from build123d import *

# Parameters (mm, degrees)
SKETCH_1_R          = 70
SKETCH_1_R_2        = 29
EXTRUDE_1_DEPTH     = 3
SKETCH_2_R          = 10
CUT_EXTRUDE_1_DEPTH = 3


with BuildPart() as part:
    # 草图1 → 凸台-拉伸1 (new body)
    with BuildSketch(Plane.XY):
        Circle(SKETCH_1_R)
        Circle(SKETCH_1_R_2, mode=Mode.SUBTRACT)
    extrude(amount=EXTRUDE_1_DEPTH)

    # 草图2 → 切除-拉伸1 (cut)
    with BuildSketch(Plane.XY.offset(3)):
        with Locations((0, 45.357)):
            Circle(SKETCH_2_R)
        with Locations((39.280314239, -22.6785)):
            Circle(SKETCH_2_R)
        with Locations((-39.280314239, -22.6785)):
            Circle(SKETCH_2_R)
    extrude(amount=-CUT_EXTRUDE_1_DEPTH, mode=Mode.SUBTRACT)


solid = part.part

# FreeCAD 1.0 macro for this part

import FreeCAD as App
import Part
import Sketcher

doc = App.newDocument("Part")
body = doc.addObject("PartDesign::Body", "Body")

sketch1 = doc.addObject("Sketcher::SketchObject", "Sketch")
body.addObject(sketch1)
sketch1.AttachmentSupport = (doc.XY_Plane, [""])
sketch1.MapMode = "FlatFace"
sketch1.addGeometry([
    Part.Circle(App.Vector(0, 0, 0), App.Vector(0, 0, 1), 70),
    Part.Circle(App.Vector(0, 0, 0), App.Vector(0, 0, 1), 29),
], False)
sketch1.addConstraint([
    Sketcher.Constraint("Coincident", 0, 3, -1, 1),
    Sketcher.Constraint("Coincident", 1, 3, -1, 1),
    Sketcher.Constraint("Diameter", 0, 140.0),
    Sketcher.Constraint("Diameter", 1, 58.0),
])
pad1 = doc.addObject("PartDesign::Pad", "Pad")
body.addObject(pad1)
pad1.Profile = sketch1
pad1.Length = 3

sketch2 = doc.addObject("Sketcher::SketchObject", "Sketch001")
body.addObject(sketch2)
sketch2.AttachmentSupport = (doc.XY_Plane, [""])
sketch2.MapMode = "FlatFace"
sketch2.AttachmentOffset = App.Placement(App.Vector(0, 0, 3), App.Rotation())
sketch2.addGeometry([
    Part.Circle(App.Vector(0, 45, 0), App.Vector(0, 0, 1), 10),
    Part.Circle(App.Vector(39, -23, 0), App.Vector(0, 0, 1), 10),
    Part.Circle(App.Vector(-39, -23, 0), App.Vector(0, 0, 1), 10),
], False)
sketch2.addConstraint([
    Sketcher.Constraint("Equal", 0, 1),
    Sketcher.Constraint("Equal", 1, 2),
    Sketcher.Constraint("Symmetric", 1, 3, 2, 3, -2),
    Sketcher.Constraint("PointOnObject", 0, 3, -2),
    Sketcher.Constraint("Diameter", 0, 20.0),
    Sketcher.Constraint("DistanceY", -1, 1, 0, 3, 45.357),
    Sketcher.Constraint("DistanceY", 1, 3, -1, 1, 22.6785),
    Sketcher.Constraint("DistanceX", 2, 3, 1, 3, 78.560628),
])
pocket1 = doc.addObject("PartDesign::Pocket", "Pocket")
body.addObject(pocket1)
pocket1.Profile = sketch2
pocket1.Length = 3

doc.recompute()
